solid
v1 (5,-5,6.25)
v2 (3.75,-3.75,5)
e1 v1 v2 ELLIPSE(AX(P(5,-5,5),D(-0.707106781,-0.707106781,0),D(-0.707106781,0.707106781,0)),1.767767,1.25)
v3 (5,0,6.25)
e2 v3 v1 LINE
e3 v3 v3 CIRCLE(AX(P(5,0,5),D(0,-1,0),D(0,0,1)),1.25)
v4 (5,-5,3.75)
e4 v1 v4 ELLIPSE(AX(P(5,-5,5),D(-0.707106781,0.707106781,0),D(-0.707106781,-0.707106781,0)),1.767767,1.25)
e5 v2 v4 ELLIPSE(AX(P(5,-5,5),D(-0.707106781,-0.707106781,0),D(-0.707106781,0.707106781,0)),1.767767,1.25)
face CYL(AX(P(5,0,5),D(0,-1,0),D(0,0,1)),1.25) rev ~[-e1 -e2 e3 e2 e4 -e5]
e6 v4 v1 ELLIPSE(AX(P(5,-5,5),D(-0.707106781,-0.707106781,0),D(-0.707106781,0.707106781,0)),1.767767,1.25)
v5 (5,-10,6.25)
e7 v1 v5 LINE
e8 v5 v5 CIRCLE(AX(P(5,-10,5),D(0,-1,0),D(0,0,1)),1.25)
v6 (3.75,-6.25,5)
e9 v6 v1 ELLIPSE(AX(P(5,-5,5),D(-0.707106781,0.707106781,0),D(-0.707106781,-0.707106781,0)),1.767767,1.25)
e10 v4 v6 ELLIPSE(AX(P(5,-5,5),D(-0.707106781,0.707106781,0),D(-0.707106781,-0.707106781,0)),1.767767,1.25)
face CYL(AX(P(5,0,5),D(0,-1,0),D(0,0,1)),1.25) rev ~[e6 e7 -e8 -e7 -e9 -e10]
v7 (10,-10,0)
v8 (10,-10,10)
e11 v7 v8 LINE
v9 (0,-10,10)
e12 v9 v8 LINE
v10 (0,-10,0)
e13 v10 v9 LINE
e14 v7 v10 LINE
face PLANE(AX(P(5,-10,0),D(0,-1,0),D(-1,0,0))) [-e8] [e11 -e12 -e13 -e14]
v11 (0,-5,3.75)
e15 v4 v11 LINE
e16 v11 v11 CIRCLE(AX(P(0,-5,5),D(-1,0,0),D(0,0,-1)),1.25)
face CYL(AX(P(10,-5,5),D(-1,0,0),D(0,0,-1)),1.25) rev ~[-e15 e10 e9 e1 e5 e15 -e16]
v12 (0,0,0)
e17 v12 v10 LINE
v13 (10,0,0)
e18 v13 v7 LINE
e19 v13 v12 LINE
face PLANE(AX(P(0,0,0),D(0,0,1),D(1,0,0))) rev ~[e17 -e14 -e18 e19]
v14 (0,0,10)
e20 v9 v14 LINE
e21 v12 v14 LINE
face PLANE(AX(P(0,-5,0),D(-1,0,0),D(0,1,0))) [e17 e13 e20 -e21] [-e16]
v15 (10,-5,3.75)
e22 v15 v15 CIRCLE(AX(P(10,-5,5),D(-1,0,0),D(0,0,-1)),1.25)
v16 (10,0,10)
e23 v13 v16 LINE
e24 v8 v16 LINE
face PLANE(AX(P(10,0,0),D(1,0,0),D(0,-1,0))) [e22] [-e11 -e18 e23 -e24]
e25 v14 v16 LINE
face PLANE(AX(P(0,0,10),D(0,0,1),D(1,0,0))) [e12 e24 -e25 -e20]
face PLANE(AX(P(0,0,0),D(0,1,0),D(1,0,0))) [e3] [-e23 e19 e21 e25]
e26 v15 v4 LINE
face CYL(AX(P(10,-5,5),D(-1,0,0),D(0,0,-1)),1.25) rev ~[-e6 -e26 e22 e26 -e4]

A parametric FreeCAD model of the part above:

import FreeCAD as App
import Part
import Sketcher

V = App.Vector

doc = App.newDocument("Part")
body = doc.addObject("PartDesign::Body", "Body")

# Sketch on XY plane
sketch1 = doc.addObject("Sketcher::SketchObject", "Sketch")
body.addObject(sketch1)
sketch1.AttachmentSupport = (doc.XY_Plane, [""])
sketch1.MapMode = "FlatFace"
sketch1.addGeometry([
    Part.LineSegment(V(0, 0, 0), V(0, -10, 0)),
    Part.LineSegment(V(0, -10, 0), V(10, -10, 0)),
    Part.LineSegment(V(10, -10, 0), V(10, 0, 0)),
    Part.LineSegment(V(10, 0, 0), V(0, 0, 0)),
], False)
sketch1.addConstraint([
    Sketcher.Constraint("Coincident", 0, 2, 1, 1),
    Sketcher.Constraint("Coincident", 1, 2, 2, 1),
    Sketcher.Constraint("Coincident", 2, 2, 3, 1),
    Sketcher.Constraint("Coincident", 3, 2, 0, 1),
    Sketcher.Constraint("Vertical", 0),
    Sketcher.Constraint("Horizontal", 1),
    Sketcher.Constraint("Vertical", 2),
    Sketcher.Constraint("Horizontal", 3),
    Sketcher.Constraint("Coincident", 3, 2, -1, 1),
    Sketcher.Constraint("Equal", 3, 0),
    Sketcher.Constraint("DistanceX", 1, 1, 1, 2, 10.0),
])
pad1 = doc.addObject("PartDesign::Pad", "Pad")
body.addObject(pad1)
pad1.Profile = sketch1
pad1.Length = 10

# Sketch on YZ plane
sketch2 = doc.addObject("Sketcher::SketchObject", "Sketch001")
body.addObject(sketch2)
sketch2.AttachmentSupport = (doc.YZ_Plane, [""])
sketch2.MapMode = "FlatFace"
sketch2.AttachmentOffset = App.Placement(V(0, 0, 10), App.Rotation())
sketch2.addGeometry(Part.Circle(V(-5, 5, 0), V(0, 0, 1), 1.2), False)
sketch2.addConstraint([
    Sketcher.Constraint("Diameter", 0, 2.5),
    Sketcher.Constraint("DistanceX", 0, 3, -1, 1, 5.0),
    Sketcher.Constraint("DistanceY", -1, 1, 0, 3, 5.0),
])
doc.recompute()
hole = doc.addObject("PartDesign::Hole", "Hole")
body.addObject(hole)
hole.Profile = sketch2
hole.ThreadType = "None"
hole.Diameter = 2.5
hole.DepthType = "ThroughAll"

# Sketch on XZ plane
sketch3 = doc.addObject("Sketcher::SketchObject", "Sketch002")
body.addObject(sketch3)
sketch3.AttachmentSupport = (doc.XZ_Plane, [""])
sketch3.MapMode = "FlatFace"
sketch3.addGeometry(Part.Circle(V(5, 5, 0), V(0, 0, 1), 1.2), False)
sketch3.addConstraint([
    Sketcher.Constraint("Diameter", 0, 2.5),
    Sketcher.Constraint("DistanceX", -1, 1, 0, 3, 5.0),
    Sketcher.Constraint("DistanceY", -1, 1, 0, 3, 5.0),
])
doc.recompute()
hole2 = doc.addObject("PartDesign::Hole", "Hole001")
body.addObject(hole2)
hole2.Profile = sketch3
hole2.ThreadType = "None"
hole2.Diameter = 2.5
hole2.DepthType = "ThroughAll"
hole2.Reversed = True

doc.recompute()
